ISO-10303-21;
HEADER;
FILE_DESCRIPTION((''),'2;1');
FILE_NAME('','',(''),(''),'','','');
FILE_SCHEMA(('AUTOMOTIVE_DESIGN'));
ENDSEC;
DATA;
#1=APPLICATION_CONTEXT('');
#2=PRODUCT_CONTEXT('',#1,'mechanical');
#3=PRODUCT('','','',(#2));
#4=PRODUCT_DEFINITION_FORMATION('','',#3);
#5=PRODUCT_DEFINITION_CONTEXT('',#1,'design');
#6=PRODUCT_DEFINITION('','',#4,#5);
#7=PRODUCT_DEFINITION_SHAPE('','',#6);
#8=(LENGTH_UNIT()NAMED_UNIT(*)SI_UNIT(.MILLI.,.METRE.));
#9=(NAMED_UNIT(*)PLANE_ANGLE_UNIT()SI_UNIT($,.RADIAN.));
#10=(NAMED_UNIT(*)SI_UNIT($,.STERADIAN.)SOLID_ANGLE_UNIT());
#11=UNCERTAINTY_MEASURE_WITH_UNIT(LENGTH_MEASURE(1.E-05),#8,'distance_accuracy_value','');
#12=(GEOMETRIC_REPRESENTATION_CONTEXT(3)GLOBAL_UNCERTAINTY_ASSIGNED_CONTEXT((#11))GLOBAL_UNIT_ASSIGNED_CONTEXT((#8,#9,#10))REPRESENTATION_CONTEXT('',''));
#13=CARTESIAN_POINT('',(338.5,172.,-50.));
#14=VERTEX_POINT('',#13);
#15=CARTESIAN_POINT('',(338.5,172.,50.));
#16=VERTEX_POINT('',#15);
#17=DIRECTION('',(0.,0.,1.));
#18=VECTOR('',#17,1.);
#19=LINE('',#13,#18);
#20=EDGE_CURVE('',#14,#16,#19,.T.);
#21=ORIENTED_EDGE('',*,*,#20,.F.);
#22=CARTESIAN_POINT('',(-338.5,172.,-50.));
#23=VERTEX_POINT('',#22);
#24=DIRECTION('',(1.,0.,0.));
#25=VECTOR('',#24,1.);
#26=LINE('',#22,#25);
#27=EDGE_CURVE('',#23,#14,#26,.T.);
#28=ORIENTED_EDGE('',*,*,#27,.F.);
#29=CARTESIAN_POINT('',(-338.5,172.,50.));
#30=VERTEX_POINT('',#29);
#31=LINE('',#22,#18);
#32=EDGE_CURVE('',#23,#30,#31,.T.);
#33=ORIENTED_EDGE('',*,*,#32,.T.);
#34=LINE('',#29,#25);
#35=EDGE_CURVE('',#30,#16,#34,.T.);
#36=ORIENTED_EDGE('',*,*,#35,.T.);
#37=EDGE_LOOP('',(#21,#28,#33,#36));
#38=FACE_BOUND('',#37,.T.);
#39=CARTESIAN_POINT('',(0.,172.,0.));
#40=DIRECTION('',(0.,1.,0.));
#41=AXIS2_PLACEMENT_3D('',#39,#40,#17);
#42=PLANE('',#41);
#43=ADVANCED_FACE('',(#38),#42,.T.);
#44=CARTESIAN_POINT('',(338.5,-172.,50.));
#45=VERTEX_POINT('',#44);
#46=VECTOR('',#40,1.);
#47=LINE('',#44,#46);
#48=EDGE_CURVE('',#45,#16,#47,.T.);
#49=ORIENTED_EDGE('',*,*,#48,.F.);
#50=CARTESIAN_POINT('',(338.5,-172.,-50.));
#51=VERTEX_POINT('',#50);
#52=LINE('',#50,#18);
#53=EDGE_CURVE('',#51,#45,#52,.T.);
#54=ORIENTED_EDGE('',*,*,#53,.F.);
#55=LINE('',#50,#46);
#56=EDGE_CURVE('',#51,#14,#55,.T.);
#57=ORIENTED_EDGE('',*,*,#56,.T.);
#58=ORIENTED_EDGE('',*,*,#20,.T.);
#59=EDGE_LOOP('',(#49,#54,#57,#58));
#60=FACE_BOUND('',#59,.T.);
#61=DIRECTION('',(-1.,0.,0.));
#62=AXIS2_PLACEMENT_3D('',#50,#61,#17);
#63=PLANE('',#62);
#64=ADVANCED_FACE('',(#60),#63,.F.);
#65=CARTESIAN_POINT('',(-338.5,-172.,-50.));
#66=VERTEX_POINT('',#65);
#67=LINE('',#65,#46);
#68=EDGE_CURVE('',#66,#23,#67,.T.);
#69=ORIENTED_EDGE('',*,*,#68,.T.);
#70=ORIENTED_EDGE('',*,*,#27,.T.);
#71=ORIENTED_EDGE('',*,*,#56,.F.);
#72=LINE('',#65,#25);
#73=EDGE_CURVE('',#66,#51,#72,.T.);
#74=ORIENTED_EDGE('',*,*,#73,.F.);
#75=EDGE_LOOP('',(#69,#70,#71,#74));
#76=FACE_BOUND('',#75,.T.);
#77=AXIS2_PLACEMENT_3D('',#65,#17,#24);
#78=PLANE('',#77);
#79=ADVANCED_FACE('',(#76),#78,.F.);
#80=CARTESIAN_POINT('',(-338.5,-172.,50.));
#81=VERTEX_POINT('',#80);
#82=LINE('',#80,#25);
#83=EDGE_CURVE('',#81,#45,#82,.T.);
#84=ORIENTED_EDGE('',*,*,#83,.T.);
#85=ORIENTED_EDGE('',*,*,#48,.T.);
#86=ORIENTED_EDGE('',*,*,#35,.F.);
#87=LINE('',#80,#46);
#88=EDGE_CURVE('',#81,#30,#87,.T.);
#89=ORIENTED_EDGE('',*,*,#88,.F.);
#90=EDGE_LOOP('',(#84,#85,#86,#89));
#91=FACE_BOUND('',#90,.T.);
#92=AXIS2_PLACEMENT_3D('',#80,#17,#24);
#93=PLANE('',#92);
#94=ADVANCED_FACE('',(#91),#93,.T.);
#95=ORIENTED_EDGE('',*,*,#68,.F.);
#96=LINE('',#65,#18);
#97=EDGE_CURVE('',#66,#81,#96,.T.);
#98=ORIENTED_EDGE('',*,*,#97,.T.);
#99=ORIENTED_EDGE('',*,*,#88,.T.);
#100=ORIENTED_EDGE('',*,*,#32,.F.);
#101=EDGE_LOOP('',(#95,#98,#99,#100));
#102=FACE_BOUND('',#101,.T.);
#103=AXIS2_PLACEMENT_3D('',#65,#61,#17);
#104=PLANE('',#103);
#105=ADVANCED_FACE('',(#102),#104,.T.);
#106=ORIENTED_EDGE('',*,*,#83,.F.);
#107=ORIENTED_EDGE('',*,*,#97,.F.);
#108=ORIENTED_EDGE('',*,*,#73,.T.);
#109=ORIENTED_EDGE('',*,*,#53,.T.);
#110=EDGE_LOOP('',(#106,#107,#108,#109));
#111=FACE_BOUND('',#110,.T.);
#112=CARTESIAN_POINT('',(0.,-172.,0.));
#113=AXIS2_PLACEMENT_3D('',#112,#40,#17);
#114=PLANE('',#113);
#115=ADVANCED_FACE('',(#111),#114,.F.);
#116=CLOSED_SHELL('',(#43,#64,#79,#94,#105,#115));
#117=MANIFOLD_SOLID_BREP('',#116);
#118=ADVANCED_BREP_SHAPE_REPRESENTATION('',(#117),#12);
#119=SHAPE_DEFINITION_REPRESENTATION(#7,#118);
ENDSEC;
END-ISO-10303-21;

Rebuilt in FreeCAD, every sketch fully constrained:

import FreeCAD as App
import Part
import Sketcher

doc = App.newDocument("Part")
body = doc.addObject("PartDesign::Body", "Body")

# Sketch on XZ plane
sketch1 = doc.addObject("Sketcher::SketchObject", "Sketch")
body.addObject(sketch1)
sketch1.AttachmentSupport = (doc.XZ_Plane, [""])
sketch1.MapMode = "FlatFace"
sketch1.addGeometry([
    Part.LineSegment(App.Vector(-338, -50, 0), App.Vector(-338, 50, 0)),
    Part.LineSegment(App.Vector(-338, 50, 0), App.Vector(338, 50, 0)),
    Part.LineSegment(App.Vector(338, 50, 0), App.Vector(338, -50, 0)),
    Part.LineSegment(App.Vector(338, -50, 0), App.Vector(-338, -50, 0)),
], False)
sketch1.addConstraint([
    Sketcher.Constraint("Coincident", 0, 2, 1, 1),
    Sketcher.Constraint("Coincident", 1, 2, 2, 1),
    Sketcher.Constraint("Coincident", 2, 2, 3, 1),
    Sketcher.Constraint("Coincident", 3, 2, 0, 1),
    Sketcher.Constraint("Vertical", 0),
    Sketcher.Constraint("Horizontal", 1),
    Sketcher.Constraint("Vertical", 2),
    Sketcher.Constraint("Horizontal", 3),
    Sketcher.Constraint("Symmetric", 0, 2, 2, 2, -1, 1),
    Sketcher.Constraint("DistanceX", 1, 1, 1, 2, 677.0),
    Sketcher.Constraint("DistanceY", 0, 1, 0, 2, 100.0),
])
pad1 = doc.addObject("PartDesign::Pad", "Pad")
body.addObject(pad1)
pad1.Profile = sketch1
pad1.Type = "TwoLengths"
pad1.Length = 172
pad1.Length2 = 172
pad1.Reversed = True

doc.recompute()
